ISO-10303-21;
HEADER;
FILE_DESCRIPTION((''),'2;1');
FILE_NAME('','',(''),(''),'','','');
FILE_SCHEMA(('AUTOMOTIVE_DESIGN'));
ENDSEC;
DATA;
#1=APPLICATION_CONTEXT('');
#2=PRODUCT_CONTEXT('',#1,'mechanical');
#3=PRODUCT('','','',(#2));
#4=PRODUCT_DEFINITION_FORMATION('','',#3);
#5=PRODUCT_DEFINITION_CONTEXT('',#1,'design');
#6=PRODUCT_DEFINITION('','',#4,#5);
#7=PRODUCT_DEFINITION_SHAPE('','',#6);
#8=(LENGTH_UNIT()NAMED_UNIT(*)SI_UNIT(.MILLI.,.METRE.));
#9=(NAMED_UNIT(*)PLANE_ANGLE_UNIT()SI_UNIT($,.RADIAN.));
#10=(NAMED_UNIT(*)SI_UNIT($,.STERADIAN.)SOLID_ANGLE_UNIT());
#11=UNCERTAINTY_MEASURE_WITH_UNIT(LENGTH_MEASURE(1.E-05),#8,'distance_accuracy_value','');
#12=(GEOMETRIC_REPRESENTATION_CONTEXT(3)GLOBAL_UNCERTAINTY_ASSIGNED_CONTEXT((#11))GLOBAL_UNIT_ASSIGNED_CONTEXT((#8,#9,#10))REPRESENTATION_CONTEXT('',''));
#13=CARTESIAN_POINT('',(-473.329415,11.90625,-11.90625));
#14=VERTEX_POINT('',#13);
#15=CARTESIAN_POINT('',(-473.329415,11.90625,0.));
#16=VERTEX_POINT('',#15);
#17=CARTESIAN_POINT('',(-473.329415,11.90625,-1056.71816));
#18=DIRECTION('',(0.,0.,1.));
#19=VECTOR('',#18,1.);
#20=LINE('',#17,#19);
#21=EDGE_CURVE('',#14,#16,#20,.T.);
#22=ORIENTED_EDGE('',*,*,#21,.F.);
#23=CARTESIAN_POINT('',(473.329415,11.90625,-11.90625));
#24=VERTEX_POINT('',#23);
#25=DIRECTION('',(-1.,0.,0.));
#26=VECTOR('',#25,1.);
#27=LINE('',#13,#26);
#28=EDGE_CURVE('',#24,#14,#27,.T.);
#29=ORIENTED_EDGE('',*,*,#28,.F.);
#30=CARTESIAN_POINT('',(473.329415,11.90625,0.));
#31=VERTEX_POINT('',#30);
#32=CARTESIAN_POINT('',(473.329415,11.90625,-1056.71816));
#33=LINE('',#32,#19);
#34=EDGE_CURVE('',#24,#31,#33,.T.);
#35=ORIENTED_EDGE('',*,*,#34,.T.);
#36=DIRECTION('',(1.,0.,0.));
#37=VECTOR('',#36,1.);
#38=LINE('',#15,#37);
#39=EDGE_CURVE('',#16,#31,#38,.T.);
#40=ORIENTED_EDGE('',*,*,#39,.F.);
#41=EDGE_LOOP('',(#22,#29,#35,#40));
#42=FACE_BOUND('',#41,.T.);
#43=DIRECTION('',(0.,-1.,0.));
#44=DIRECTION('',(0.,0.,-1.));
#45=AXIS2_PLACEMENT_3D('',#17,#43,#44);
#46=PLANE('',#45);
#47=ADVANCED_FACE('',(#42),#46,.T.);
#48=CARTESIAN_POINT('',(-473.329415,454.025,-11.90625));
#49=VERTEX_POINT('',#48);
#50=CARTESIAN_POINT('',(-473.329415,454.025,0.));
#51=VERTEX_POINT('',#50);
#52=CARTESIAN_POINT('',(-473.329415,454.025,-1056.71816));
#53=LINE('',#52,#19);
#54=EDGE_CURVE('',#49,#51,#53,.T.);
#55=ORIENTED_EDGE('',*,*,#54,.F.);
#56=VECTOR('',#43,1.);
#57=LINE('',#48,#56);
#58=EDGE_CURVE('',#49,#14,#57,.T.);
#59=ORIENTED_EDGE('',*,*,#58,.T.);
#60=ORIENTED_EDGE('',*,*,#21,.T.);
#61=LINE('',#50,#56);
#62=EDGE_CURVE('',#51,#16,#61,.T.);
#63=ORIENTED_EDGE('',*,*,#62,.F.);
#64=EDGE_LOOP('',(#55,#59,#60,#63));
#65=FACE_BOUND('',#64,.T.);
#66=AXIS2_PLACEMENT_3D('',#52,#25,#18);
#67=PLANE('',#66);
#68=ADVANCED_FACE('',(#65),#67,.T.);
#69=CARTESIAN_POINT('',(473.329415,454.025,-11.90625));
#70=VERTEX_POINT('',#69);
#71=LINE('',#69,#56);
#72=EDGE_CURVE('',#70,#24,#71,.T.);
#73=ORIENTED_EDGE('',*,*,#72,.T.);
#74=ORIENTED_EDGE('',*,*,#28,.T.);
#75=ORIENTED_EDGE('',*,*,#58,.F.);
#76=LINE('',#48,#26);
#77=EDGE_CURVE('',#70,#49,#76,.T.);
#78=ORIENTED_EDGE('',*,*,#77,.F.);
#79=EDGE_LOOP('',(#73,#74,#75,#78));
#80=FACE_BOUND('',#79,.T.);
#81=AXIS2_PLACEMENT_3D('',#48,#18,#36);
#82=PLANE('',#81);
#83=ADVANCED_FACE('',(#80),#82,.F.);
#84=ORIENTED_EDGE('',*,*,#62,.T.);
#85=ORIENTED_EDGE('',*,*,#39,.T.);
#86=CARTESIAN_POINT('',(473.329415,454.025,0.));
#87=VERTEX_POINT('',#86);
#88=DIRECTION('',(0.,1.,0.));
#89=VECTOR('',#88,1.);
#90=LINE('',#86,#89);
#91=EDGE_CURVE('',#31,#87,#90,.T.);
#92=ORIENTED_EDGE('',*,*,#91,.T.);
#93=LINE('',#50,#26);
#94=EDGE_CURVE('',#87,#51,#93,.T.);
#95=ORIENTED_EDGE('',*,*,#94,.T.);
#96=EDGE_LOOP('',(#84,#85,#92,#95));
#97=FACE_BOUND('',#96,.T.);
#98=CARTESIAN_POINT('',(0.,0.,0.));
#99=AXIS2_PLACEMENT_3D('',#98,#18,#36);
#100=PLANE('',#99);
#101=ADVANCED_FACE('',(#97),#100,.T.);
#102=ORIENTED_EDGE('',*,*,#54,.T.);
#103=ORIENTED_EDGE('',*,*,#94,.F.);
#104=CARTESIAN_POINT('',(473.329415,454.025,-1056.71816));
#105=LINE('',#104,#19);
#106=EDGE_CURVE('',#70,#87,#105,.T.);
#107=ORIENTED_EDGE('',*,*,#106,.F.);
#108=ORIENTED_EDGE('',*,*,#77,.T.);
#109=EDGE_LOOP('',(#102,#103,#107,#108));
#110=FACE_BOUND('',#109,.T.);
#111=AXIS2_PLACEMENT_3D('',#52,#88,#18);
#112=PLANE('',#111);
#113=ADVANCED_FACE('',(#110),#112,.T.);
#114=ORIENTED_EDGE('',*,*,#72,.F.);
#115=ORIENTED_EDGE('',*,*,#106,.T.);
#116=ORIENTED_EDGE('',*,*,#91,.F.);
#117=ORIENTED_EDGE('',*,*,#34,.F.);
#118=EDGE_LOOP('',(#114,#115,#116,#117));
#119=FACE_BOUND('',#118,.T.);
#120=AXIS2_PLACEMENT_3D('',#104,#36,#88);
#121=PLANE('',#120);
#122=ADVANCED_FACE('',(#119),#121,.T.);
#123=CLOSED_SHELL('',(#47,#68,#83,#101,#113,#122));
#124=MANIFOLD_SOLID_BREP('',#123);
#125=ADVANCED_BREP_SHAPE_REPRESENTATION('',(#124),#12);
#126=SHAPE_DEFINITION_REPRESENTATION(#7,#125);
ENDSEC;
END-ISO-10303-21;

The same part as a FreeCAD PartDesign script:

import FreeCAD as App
import Part
import Sketcher

V = App.Vector
Q = App.Units.Quantity

doc = App.newDocument("Part")
body = doc.addObject("PartDesign::Body", "Body")

# Sketch on XY plane
sketch1 = body.newObject("Sketcher::SketchObject", "Sketch")
sketch1.AttachmentSupport = (doc.getObject("XY_Plane"), [""])
sketch1.MapMode = "FlatFace"
sketch1.addGeometry(Part.LineSegment(V(-473, 454, 0), V(-473, 12, 0)), False)
sketch1.addGeometry(Part.LineSegment(V(-473, 12, 0), V(473, 12, 0)), False)
sketch1.addGeometry(Part.LineSegment(V(473, 12, 0), V(473, 454, 0)), False)
sketch1.addGeometry(Part.LineSegment(V(473, 454, 0), V(-473, 454, 0)), False)
sketch1.addConstraint(Sketcher.Constraint("Coincident", 0, 2, 1, 1))
sketch1.addConstraint(Sketcher.Constraint("Coincident", 1, 2, 2, 1))
sketch1.addConstraint(Sketcher.Constraint("Coincident", 2, 2, 3, 1))
sketch1.addConstraint(Sketcher.Constraint("Coincident", 3, 2, 0, 1))
sketch1.addConstraint(Sketcher.Constraint("Vertical", 0))
sketch1.addConstraint(Sketcher.Constraint("Horizontal", 1))
sketch1.addConstraint(Sketcher.Constraint("Vertical", 2))
sketch1.addConstraint(Sketcher.Constraint("Horizontal", 3))
sketch1.addConstraint(Sketcher.Constraint("DistanceY", 0, 2, 0, 1, Q("17.40625 in")))
sketch1.addConstraint(Sketcher.Constraint("DistanceY", -1, 1, 0, 2, Q("0.46875 in")))
sketch1.addConstraint(Sketcher.Constraint("DistanceX", 1, 1, 1, 2, Q("946.658829 mm")))
sketch1.addConstraint(Sketcher.Constraint("DistanceX", 0, 2, -1, 1, Q("473.329415 mm")))
pad1 = body.newObject("PartDesign::Pad", "Pad")
pad1.Profile = sketch1
pad1.Length = Q("0.46875 in")
pad1.Reversed = True

doc.recompute()
